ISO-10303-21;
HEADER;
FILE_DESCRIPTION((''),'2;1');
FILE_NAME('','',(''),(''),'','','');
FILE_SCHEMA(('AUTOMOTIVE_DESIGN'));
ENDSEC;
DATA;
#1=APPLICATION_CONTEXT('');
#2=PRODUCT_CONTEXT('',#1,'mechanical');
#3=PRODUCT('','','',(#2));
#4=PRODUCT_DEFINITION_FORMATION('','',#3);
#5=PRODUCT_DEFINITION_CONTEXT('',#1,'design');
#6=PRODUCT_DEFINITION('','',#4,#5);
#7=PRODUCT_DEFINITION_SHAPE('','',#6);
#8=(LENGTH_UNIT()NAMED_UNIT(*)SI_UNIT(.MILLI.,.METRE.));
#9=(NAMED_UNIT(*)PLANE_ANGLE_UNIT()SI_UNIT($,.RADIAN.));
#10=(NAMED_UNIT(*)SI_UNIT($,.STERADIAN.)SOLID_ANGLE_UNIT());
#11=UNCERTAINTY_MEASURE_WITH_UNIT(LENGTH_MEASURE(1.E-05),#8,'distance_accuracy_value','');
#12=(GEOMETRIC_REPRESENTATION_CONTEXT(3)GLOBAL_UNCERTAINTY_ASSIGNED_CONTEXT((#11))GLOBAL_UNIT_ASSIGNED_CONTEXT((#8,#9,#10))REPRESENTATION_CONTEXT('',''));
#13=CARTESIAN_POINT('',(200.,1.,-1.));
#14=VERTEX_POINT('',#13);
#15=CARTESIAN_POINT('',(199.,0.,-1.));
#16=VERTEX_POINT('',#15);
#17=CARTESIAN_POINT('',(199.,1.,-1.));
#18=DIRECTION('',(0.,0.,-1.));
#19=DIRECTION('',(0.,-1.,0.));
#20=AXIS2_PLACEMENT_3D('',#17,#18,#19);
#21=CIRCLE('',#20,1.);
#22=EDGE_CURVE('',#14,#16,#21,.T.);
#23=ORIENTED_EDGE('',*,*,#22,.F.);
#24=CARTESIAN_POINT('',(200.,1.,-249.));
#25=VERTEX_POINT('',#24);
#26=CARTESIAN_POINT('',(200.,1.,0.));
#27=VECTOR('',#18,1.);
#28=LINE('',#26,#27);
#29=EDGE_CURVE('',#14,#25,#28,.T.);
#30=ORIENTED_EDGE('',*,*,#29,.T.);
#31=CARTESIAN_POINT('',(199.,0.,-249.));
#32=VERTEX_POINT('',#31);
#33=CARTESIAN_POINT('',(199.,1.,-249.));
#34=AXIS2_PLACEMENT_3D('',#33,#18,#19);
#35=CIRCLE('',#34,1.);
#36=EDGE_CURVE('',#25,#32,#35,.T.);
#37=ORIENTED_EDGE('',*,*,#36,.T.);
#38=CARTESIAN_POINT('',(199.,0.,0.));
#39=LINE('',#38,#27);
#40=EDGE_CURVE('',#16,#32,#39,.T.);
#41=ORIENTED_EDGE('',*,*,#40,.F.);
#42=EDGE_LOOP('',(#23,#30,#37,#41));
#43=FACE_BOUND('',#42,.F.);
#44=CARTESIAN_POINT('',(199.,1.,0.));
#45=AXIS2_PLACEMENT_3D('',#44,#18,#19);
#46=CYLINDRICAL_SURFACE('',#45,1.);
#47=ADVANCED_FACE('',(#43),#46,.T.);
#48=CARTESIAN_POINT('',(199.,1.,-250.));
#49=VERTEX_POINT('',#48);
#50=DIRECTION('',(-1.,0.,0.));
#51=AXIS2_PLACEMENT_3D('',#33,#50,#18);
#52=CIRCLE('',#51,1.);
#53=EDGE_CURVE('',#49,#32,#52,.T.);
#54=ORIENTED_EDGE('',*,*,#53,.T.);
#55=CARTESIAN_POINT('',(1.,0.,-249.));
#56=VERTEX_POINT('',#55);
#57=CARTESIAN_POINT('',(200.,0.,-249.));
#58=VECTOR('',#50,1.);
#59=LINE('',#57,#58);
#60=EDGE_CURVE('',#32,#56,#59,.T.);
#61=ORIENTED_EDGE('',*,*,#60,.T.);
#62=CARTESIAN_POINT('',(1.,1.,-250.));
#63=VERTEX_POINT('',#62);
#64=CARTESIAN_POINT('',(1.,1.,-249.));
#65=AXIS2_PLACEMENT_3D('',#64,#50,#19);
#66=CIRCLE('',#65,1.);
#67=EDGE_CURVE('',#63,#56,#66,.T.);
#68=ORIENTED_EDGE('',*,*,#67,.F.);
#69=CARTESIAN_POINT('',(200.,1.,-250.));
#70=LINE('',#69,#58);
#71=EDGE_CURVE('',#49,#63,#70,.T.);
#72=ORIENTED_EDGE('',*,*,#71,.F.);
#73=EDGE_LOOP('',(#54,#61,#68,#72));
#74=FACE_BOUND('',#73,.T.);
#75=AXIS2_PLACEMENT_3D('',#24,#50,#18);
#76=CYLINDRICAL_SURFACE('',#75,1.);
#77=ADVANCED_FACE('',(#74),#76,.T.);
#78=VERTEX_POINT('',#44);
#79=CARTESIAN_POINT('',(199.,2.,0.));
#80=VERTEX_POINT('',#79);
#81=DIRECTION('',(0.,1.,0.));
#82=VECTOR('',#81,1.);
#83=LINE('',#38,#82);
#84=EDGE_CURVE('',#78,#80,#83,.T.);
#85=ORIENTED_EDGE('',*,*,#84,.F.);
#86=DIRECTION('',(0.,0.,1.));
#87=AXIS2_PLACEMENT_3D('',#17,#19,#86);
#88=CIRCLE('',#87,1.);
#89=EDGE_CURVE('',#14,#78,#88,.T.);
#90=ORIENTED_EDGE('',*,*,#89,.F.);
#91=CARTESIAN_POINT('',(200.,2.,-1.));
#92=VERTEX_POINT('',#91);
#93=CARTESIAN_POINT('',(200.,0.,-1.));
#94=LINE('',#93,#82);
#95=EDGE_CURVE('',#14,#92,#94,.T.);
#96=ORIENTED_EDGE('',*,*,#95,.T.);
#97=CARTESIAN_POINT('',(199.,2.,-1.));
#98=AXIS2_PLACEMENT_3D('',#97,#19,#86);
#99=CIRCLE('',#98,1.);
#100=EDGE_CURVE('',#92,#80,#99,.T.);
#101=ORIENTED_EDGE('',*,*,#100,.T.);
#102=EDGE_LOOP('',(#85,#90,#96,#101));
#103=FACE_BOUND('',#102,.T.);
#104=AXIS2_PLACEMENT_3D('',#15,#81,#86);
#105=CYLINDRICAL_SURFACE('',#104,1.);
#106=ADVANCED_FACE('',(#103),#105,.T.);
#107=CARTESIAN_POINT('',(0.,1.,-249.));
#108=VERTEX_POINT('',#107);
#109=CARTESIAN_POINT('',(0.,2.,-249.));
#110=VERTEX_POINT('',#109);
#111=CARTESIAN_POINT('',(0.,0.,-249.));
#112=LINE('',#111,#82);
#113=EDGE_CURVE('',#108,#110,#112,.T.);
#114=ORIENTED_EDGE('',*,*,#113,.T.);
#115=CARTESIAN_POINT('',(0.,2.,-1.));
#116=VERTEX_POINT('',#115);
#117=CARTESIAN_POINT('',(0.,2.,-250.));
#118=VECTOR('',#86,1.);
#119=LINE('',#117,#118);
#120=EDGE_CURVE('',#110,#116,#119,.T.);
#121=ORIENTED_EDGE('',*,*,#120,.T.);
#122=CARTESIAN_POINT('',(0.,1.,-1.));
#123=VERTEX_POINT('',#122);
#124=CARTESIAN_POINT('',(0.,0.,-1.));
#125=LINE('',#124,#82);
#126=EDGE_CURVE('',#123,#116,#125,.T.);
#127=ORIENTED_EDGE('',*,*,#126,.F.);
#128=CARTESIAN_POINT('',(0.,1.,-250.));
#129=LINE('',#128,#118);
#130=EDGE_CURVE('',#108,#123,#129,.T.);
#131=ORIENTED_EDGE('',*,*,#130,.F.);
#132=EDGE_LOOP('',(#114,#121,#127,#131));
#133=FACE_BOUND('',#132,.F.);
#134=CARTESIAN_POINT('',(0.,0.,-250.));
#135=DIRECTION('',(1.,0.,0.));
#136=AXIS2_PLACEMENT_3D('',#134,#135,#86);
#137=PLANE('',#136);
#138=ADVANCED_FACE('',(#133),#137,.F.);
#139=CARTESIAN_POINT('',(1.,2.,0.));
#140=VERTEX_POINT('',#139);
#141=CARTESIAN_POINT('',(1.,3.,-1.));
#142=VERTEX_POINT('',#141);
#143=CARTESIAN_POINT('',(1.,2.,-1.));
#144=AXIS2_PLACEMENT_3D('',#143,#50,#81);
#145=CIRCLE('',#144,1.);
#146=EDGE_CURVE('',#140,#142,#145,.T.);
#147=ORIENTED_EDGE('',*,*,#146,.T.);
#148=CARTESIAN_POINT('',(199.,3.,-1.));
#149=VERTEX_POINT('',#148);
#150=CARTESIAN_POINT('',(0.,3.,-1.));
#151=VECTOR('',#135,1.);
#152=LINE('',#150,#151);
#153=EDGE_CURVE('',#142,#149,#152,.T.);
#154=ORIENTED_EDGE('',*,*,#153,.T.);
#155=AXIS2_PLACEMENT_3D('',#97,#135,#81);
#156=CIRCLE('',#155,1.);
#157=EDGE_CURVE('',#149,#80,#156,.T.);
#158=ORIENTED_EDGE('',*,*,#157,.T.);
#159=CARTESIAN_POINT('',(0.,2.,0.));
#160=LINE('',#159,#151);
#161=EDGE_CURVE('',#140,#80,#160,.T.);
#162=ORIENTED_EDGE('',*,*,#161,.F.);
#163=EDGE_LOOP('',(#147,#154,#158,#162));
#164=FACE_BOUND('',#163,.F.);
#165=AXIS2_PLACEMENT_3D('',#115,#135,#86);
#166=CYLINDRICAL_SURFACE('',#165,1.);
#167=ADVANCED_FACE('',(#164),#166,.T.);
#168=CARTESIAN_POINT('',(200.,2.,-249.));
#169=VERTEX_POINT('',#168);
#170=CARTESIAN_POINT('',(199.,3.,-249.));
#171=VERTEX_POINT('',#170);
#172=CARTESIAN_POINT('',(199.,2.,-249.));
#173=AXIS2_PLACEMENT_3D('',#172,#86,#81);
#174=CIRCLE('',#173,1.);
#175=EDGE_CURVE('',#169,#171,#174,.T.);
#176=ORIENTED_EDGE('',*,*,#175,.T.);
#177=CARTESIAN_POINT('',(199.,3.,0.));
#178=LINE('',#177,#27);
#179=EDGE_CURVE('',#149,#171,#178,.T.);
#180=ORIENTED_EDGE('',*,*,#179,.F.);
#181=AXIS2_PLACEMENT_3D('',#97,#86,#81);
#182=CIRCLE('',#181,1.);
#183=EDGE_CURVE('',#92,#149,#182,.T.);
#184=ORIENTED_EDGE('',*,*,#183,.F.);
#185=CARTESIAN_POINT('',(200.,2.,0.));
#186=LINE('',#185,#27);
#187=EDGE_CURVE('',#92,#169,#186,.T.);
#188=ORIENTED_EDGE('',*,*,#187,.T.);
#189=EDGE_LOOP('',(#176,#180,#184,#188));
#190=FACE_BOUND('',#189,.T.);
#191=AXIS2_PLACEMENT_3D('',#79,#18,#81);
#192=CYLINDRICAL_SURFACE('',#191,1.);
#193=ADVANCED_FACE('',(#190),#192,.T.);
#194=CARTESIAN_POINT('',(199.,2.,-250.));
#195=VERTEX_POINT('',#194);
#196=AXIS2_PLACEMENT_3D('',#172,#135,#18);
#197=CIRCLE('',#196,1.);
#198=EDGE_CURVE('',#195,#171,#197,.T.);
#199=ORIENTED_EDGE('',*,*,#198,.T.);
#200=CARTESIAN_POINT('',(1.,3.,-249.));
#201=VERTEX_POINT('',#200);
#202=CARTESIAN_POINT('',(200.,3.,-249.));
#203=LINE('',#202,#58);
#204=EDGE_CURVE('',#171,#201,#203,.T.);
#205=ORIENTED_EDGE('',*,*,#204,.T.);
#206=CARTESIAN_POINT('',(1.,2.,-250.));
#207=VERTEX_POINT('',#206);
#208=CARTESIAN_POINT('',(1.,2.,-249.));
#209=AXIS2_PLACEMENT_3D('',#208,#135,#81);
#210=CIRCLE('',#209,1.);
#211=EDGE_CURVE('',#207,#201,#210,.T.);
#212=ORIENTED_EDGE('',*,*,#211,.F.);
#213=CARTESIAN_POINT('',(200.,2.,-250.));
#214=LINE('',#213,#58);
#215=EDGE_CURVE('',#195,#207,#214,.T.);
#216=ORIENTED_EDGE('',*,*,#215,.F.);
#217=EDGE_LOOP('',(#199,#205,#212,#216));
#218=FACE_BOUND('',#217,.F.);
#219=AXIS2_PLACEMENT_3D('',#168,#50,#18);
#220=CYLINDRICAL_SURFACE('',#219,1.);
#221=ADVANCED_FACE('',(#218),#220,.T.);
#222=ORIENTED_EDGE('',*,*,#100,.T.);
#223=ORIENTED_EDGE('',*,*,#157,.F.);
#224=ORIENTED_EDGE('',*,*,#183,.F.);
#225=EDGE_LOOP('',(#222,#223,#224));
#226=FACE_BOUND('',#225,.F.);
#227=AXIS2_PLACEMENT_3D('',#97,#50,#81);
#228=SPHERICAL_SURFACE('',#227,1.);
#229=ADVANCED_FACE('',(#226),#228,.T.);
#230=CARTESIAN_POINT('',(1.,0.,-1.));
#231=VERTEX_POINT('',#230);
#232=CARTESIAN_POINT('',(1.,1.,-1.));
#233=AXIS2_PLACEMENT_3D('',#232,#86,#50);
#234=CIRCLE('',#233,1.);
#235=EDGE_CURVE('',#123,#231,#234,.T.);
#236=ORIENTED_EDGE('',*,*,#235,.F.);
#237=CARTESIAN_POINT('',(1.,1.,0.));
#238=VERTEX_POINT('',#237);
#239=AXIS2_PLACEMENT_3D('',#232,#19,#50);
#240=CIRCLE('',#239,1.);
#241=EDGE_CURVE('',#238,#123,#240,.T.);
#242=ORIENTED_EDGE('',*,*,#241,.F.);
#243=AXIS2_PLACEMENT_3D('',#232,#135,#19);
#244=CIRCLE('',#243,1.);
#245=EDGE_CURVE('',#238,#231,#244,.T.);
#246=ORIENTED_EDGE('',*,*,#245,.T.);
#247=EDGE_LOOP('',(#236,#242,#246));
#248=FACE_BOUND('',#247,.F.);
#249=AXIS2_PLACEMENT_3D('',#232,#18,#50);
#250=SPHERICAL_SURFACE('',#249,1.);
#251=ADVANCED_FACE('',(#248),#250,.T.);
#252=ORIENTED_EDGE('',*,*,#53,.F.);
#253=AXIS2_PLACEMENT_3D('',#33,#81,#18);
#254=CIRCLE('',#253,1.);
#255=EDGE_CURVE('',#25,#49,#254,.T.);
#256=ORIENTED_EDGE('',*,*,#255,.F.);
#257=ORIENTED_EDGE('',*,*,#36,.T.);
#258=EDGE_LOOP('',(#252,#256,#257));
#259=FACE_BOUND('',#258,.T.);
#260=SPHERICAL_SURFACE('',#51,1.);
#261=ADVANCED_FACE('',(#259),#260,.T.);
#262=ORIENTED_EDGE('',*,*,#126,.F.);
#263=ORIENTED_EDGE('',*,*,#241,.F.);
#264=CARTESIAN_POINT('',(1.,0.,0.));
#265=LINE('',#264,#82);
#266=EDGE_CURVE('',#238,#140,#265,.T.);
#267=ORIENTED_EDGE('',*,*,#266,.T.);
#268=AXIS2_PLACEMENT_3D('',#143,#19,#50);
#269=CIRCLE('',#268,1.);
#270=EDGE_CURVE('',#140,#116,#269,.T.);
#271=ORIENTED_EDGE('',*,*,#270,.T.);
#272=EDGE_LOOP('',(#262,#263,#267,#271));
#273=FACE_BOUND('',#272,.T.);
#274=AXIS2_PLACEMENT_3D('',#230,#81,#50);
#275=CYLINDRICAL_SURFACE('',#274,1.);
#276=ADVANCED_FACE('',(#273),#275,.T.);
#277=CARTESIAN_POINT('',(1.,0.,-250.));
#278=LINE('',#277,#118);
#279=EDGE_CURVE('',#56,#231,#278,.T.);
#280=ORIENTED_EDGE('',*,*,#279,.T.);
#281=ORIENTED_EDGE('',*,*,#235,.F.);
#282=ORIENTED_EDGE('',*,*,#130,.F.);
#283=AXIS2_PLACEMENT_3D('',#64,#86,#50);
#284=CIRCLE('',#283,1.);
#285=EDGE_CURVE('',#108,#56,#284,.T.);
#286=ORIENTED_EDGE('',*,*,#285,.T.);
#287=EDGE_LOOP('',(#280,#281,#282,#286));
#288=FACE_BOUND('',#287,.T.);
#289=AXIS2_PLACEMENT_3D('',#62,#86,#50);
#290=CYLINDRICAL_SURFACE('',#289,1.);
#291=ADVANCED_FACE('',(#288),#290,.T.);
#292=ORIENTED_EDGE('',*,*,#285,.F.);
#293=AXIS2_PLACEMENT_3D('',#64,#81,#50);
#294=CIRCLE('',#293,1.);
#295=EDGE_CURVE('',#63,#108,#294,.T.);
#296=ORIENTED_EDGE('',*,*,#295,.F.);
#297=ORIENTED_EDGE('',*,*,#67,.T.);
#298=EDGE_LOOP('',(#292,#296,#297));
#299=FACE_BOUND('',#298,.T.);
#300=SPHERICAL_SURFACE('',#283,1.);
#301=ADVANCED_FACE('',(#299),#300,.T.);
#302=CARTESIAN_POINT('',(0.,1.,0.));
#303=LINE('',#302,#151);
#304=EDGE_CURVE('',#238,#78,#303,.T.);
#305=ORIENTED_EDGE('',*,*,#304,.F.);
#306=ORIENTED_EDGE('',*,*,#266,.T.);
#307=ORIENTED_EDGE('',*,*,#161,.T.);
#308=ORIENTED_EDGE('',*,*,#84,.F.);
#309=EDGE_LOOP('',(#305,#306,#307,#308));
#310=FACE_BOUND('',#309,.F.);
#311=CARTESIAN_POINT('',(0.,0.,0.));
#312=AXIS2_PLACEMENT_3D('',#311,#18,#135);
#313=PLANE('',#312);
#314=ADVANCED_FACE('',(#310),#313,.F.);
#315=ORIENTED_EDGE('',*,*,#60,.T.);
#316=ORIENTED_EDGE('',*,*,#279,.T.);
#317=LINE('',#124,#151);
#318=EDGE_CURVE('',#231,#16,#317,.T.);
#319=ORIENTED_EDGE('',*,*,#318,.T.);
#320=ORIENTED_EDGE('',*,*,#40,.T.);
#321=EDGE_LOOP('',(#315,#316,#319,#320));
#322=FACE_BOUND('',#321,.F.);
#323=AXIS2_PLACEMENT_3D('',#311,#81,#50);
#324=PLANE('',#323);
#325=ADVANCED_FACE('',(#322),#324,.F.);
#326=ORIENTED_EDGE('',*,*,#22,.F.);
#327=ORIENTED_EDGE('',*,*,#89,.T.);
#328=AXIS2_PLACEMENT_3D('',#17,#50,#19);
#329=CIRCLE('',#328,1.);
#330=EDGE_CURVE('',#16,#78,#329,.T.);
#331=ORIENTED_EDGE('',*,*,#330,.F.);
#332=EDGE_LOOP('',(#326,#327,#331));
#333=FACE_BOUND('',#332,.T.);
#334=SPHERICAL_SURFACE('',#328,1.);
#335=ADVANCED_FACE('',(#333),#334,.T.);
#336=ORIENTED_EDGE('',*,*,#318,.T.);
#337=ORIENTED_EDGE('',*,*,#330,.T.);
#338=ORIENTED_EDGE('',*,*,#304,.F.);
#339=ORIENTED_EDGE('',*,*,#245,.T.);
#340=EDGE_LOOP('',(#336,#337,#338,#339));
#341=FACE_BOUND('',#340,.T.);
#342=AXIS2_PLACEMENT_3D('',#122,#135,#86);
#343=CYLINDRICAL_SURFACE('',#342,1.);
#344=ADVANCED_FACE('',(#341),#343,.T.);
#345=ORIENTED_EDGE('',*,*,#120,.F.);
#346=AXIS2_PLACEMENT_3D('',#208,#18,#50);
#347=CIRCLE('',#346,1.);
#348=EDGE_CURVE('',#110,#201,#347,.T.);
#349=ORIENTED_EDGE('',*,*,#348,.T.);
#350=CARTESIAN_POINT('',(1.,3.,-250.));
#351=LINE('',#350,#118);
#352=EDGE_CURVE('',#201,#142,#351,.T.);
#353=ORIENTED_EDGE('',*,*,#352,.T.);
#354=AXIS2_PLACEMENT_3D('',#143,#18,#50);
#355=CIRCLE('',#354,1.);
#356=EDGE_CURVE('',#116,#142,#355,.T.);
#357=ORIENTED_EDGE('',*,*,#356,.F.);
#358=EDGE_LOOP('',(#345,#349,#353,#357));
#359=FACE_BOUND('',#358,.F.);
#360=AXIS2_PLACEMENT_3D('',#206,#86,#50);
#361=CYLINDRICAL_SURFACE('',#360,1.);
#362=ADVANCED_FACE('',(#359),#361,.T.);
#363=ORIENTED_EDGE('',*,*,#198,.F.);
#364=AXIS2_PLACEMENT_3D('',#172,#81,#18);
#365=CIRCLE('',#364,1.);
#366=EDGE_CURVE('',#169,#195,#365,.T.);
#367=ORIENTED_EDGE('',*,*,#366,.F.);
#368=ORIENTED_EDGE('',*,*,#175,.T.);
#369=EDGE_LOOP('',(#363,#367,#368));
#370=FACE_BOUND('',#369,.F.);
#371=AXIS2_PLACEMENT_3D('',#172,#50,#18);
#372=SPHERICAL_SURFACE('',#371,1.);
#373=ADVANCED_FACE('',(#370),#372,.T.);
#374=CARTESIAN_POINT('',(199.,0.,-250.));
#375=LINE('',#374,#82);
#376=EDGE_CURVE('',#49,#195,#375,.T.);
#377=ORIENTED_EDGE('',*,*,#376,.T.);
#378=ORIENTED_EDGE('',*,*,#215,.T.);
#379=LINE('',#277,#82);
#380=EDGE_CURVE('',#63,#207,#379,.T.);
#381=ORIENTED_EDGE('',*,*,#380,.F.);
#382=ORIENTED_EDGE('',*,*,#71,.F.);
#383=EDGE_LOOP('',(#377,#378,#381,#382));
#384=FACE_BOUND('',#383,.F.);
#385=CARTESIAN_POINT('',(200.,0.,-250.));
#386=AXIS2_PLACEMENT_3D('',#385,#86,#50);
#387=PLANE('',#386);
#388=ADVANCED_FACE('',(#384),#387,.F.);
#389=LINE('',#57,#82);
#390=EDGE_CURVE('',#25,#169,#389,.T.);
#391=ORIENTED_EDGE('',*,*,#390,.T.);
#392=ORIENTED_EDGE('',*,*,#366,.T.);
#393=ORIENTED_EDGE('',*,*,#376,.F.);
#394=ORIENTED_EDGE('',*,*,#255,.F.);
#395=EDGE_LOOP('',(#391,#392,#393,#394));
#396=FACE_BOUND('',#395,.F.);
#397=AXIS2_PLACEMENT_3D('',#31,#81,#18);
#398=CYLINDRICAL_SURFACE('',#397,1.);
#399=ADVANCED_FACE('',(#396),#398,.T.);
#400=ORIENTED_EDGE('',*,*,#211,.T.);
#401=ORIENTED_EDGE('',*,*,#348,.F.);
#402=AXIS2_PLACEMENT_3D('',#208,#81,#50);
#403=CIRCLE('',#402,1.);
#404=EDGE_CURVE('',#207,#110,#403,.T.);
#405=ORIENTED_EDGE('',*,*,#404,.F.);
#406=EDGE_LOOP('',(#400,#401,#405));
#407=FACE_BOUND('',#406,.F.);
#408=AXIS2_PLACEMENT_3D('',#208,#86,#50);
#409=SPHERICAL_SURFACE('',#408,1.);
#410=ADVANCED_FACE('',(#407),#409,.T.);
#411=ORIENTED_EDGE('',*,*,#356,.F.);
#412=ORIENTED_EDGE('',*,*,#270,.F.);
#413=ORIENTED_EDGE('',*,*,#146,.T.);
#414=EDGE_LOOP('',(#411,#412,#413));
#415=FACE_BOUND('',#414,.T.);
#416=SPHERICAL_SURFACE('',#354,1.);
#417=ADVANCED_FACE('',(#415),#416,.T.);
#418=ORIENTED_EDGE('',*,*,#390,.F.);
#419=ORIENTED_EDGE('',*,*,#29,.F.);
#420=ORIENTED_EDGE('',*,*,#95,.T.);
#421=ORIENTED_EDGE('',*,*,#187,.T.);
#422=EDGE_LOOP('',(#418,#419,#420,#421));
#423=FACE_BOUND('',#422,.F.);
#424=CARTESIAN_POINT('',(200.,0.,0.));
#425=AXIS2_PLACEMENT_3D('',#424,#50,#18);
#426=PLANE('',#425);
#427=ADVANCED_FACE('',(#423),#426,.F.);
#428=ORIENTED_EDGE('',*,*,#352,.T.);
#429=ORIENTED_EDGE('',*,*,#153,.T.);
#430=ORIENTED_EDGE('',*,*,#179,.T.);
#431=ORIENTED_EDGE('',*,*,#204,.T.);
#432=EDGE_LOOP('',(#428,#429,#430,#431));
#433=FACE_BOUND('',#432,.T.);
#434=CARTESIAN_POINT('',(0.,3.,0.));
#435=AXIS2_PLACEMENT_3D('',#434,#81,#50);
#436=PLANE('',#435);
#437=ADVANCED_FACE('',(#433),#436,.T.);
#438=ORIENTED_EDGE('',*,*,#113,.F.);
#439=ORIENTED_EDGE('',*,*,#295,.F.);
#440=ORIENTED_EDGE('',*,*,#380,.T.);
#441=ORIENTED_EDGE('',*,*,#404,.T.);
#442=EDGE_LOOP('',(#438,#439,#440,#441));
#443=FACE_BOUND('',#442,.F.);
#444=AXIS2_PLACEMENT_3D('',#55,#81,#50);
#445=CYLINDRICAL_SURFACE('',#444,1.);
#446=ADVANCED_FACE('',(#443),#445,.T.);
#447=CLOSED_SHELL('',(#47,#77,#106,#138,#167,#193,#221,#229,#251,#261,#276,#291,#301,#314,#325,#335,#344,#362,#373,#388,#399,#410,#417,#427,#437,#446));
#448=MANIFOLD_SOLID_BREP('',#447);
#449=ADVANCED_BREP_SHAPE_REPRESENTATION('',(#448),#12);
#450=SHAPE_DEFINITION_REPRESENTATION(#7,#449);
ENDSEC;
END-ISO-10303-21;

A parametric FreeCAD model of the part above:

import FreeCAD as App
import Part
import Sketcher

V = App.Vector
Q = App.Units.Quantity

doc = App.newDocument("Part")
body = doc.addObject("PartDesign::Body", "Body")

# Sketch on XZ plane
sketch1 = doc.addObject("Sketcher::SketchObject", "Sketch")
body.addObject(sketch1)
sketch1.AttachmentSupport = (doc.XZ_Plane, [""])
sketch1.MapMode = "FlatFace"
sketch1.addGeometry([
    Part.LineSegment(V(0, -250, 0), V(0, 0, 0)),
    Part.LineSegment(V(0, 0, 0), V(200, 0, 0)),
    Part.LineSegment(V(200, 0, 0), V(200, -250, 0)),
    Part.LineSegment(V(200, -250, 0), V(0, -250, 0)),
], False)
sketch1.addConstraint([
    Sketcher.Constraint("Coincident", 0, 2, 1, 1),
    Sketcher.Constraint("Coincident", 1, 2, 2, 1),
    Sketcher.Constraint("Coincident", 2, 2, 3, 1),
    Sketcher.Constraint("Coincident", 3, 2, 0, 1),
    Sketcher.Constraint("Vertical", 0),
    Sketcher.Constraint("Horizontal", 1),
    Sketcher.Constraint("Vertical", 2),
    Sketcher.Constraint("Horizontal", 3),
    Sketcher.Constraint("Coincident", 0, 2, -1, 1),
    Sketcher.Constraint("DistanceX", 1, 1, 1, 2, Q("200 mm")),
    Sketcher.Constraint("DistanceY", 0, 1, 0, 2, Q("250 mm")),
])
pad1 = doc.addObject("PartDesign::Pad", "Pad")
body.addObject(pad1)
pad1.Profile = sketch1
pad1.Length = 3
pad1.Reversed = True
doc.recompute()

fillet = doc.addObject("PartDesign::Fillet", "Fillet")
body.addObject(fillet)
fillet.Base = (pad1, ["Edge1"])
fillet.UseAllEdges = True
fillet.Radius = 1

doc.recompute()
